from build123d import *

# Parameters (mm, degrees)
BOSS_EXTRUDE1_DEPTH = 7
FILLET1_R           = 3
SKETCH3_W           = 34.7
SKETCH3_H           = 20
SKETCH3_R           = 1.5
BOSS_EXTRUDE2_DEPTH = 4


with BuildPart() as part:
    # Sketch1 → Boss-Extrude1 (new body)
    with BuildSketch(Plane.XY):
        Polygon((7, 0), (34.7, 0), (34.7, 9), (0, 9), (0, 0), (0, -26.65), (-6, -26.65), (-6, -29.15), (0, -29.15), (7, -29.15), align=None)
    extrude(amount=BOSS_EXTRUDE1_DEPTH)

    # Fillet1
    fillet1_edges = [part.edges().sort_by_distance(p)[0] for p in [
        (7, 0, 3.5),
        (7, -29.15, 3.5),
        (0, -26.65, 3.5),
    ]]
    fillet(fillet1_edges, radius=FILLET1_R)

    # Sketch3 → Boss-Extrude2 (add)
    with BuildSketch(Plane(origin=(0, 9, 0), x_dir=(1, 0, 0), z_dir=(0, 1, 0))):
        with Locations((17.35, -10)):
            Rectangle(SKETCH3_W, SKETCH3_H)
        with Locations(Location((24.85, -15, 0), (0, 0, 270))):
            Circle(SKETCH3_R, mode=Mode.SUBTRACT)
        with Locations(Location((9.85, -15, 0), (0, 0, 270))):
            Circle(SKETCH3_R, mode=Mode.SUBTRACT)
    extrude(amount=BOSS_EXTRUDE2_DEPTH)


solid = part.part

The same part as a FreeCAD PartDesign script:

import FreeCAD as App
import Part
import Sketcher
from FreeCAD import Vector


def edges_at(feature, points):
    """Names of the edges that pass closest to the given points."""
    edges = feature.Shape.Edges
    near = lambda p: min(range(len(edges)), key=lambda i: edges[i].distToShape(Part.Vertex(*p))[0])
    return sorted({f"Edge{near(p) + 1}" for p in points})


def add_polygon(sketch, points):
    """Adds a closed chain of lines whose ends are joined by coincident constraints."""
    first, n = sketch.GeometryCount, len(points)
    for a, b in zip(points, points[1:] + points[:1]):
        sketch.addGeometry(Part.LineSegment(App.Vector(*a, 0), App.Vector(*b, 0)), False)
    for i in range(n):
        sketch.addConstraint(Sketcher.Constraint("Coincident", first + i, 2, first + (i + 1) % n, 1))

doc = App.newDocument("Part")
params = doc.addObject("Spreadsheet::Sheet", "Params")
for row, (alias, value) in enumerate([
    ("sketch1_width", "6 mm"),
    ("sketch1_width2", "13 mm"),
    ("sketch1_height", "9 mm"),
    ("sketch1_width3", "27.7 mm"),
    ("sketch1_height2", "2.5 mm"),
    ("pad1_length", "7 mm"),
    ("fillet_radius", "3 mm"),
    ("sketch2_diameter", "3 mm"),
    ("sketch2_height", "20 mm"),
    ("sketch2_width", "34.7 mm"),
    ("pad2_length", "4 mm"),
], start=1):
    params.set(f"A{row}", alias)
    params.set(f"B{row}", "=" + value)
    params.setAlias(f"B{row}", alias)

body = doc.addObject("PartDesign::Body", "Body")

sketch1 = body.newObject("Sketcher::SketchObject", "Sketch")
sketch1.AttachmentSupport = (doc.getObject("XY_Plane"), [""])
sketch1.MapMode = "FlatFace"
add_polygon(sketch1, [(7, 0), (34.7, 0), (34.7, 9), (0, 9), (0, -26.6), (-6, -26.6), (-6, -29.1), (7, -29.1)])
sketch1.addConstraint([
    Sketcher.Constraint("Horizontal", 0),
    Sketcher.Constraint("Vertical", 1),
    Sketcher.Constraint("Horizontal", 2),
    Sketcher.Constraint("Vertical", 3),
    Sketcher.Constraint("Horizontal", 4),
    Sketcher.Constraint("Vertical", 5),
    Sketcher.Constraint("Horizontal", 6),
    Sketcher.Constraint("Vertical", 7),
    Sketcher.Constraint("PointOnObject", 0, 2, -1),
    Sketcher.Constraint("PointOnObject", 2, 2, -2),
    Sketcher.Constraint("DistanceX", 4, 2, 4, 1, 6.0),
    Sketcher.Constraint("DistanceX", 6, 1, 6, 2, 13.0),
    Sketcher.Constraint("DistanceY", 1, 1, 1, 2, 9.0),
    Sketcher.Constraint("DistanceX", 0, 1, 0, 2, 27.7),
    Sketcher.Constraint("DistanceY", 5, 2, 5, 1, 2.5),
    Sketcher.Constraint("DistanceY", 3, 2, 3, 1, 35.65),
])
sketch1.setExpression("Constraints[18]", "Params.sketch1_width")
sketch1.setExpression("Constraints[19]", "Params.sketch1_width2")
sketch1.setExpression("Constraints[20]", "Params.sketch1_height")
sketch1.setExpression("Constraints[21]", "Params.sketch1_width3")
sketch1.setExpression("Constraints[22]", "Params.sketch1_height2")
pad1 = body.newObject("PartDesign::Pad", "Pad")
pad1.Profile = sketch1
pad1.setExpression("Length", "Params.pad1_length")
doc.recompute()

fillet = body.newObject("PartDesign::Fillet", "Fillet")
fillet.Base = (pad1, edges_at(pad1, [(7, 0, 3.5), (7, -29.15, 3.5), (0, -26.65, 3.5)]))
fillet.setExpression("Radius", "Params.fillet_radius")

sketch2 = body.newObject("Sketcher::SketchObject", "Sketch001")
sketch2.AttachmentSupport = (doc.getObject("XZ_Plane"), [""])
sketch2.MapMode = "FlatFace"
sketch2.AttachmentOffset = App.Placement(Vector(0, 0, -9), App.Rotation())
add_polygon(sketch2, [(0, 0), (0, 20), (34.7, 20), (34.7, 0)])
sketch2.addGeometry(Part.Circle(Vector(9.8, 15, 0), Vector(0, 0, 1), 1.5), False)
sketch2.addGeometry(Part.Circle(Vector(24.9, 15, 0), Vector(0, 0, 1), 1.5), False)
sketch2.addConstraint([
    Sketcher.Constraint("Vertical", 0),
    Sketcher.Constraint("Horizontal", 1),
    Sketcher.Constraint("Vertical", 2),
    Sketcher.Constraint("Horizontal", 3),
    Sketcher.Constraint("Coincident", 3, 2, -1, 1),
    Sketcher.Constraint("Equal", 4, 5),
    Sketcher.Constraint("Horizontal", 4, 3, 5, 3),
    Sketcher.Constraint("Diameter", 4, 3.0),
    Sketcher.Constraint("DistanceY", 0, 1, 0, 2, 20.0),
    Sketcher.Constraint("DistanceX", 1, 1, 1, 2, 34.7),
    Sketcher.Constraint("DistanceY", -1, 1, 4, 3, 15.0),
    Sketcher.Constraint("DistanceX", 4, 3, 5, 3, 15.0),
    Sketcher.Constraint("DistanceX", -1, 1, 4, 3, 9.85),
])
sketch2.setExpression("Constraints[11]", "Params.sketch2_diameter")
sketch2.setExpression("Constraints[12]", "Params.sketch2_height")
sketch2.setExpression("Constraints[13]", "Params.sketch2_width")
pad2 = body.newObject("PartDesign::Pad", "Pad001")
pad2.Profile = sketch2
pad2.setExpression("Length", "Params.pad2_length")
pad2.Reversed = True

doc.recompute()
